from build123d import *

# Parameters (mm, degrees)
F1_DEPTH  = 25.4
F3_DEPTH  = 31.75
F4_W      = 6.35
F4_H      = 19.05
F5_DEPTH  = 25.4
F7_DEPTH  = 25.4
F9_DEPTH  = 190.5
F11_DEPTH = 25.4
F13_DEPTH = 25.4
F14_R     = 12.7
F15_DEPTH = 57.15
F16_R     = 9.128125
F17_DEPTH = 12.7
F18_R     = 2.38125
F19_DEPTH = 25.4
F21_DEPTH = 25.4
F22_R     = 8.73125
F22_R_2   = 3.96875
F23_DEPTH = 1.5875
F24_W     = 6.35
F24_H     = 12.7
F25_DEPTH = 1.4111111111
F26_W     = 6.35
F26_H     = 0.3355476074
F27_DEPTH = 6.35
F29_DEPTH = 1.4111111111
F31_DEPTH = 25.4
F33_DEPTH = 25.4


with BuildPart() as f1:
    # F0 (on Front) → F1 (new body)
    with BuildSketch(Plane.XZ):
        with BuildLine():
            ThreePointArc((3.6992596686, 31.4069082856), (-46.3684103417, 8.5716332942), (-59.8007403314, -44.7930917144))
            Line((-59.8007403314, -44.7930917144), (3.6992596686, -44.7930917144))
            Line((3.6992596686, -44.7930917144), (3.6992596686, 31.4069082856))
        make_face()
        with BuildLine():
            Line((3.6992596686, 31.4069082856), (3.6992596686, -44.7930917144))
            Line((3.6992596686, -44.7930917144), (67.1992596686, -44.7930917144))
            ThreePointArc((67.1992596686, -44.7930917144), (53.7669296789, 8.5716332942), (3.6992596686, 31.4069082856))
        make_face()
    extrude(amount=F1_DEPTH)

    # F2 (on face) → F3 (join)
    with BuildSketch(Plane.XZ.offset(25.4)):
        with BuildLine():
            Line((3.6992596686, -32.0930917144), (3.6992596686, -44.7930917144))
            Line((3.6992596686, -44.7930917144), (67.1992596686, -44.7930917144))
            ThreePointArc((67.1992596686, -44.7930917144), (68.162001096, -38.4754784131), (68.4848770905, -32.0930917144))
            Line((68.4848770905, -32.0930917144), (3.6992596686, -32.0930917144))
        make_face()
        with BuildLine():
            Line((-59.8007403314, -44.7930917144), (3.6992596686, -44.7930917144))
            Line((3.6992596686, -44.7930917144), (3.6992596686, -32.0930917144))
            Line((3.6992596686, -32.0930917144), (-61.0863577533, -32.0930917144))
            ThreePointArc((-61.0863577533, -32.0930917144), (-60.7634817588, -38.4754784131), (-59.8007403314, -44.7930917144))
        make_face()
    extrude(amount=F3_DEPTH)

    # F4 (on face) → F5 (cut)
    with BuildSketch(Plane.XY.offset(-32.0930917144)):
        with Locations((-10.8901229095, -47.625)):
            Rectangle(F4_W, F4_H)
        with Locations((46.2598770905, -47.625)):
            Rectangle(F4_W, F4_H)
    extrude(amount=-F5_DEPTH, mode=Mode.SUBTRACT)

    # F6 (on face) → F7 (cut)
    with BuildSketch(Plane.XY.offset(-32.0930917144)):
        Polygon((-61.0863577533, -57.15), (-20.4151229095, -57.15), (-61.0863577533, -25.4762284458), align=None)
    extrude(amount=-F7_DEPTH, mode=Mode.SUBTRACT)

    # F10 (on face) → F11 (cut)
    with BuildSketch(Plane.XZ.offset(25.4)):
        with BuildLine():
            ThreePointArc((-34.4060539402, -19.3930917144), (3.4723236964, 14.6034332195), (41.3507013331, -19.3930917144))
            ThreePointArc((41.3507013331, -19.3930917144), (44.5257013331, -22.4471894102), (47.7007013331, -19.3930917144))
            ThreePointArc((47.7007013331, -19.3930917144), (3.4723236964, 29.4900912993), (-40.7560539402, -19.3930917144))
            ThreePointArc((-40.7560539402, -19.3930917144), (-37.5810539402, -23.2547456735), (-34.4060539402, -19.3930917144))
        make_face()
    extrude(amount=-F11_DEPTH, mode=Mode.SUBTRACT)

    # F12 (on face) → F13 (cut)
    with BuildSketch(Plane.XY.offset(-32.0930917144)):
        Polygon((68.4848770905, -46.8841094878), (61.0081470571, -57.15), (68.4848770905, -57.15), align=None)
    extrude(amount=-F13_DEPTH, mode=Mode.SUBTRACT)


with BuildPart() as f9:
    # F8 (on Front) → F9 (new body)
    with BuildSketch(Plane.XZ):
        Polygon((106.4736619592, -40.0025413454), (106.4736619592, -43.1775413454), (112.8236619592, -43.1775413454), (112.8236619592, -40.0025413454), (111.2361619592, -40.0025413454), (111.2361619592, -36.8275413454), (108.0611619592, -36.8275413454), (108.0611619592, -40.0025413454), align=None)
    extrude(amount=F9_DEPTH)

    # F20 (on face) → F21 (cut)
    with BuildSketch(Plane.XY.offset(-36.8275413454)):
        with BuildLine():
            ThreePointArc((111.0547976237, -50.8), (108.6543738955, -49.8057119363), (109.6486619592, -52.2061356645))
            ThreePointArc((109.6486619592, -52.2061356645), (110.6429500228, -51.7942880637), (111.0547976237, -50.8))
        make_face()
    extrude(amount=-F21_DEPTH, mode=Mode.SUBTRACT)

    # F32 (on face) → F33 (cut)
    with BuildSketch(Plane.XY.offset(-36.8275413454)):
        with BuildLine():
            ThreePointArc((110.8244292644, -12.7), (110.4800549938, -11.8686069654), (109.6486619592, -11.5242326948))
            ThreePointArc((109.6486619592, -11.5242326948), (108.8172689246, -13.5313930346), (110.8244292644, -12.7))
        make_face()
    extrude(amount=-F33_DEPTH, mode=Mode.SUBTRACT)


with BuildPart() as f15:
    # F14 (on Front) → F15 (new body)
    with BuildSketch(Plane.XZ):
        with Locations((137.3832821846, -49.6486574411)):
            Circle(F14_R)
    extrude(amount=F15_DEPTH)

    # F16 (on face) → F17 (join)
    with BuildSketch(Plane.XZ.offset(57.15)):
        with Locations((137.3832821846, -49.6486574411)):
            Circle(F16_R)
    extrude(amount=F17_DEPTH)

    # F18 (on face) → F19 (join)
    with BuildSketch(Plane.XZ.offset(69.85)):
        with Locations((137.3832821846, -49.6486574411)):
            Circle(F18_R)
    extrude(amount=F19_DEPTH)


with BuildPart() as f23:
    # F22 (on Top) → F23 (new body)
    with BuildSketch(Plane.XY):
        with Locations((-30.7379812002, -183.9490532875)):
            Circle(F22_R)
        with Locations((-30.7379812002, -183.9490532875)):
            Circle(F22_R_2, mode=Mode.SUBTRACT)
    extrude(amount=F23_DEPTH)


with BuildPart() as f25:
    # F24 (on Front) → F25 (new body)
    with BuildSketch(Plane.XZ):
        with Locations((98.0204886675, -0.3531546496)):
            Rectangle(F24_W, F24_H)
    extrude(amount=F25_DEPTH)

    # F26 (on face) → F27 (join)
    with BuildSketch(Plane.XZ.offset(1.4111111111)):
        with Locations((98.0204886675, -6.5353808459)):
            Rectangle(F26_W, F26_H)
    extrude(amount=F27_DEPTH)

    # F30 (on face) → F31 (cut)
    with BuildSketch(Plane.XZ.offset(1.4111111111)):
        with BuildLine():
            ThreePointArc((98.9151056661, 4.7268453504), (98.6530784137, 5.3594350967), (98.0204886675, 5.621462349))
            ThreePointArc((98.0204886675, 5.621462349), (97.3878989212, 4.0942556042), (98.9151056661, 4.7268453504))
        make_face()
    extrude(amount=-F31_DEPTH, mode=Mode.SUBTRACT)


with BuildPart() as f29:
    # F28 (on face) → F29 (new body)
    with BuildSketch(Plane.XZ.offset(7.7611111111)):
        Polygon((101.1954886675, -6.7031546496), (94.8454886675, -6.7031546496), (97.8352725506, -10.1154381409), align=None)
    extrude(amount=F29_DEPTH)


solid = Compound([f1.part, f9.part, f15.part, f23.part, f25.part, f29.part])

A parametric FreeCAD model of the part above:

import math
import FreeCAD as App
import Part
import Sketcher

V = App.Vector
Q = App.Units.Quantity


def add_polygon(sketch, points):
    """Adds a closed chain of lines whose ends are joined by coincident constraints."""
    first, n = sketch.GeometryCount, len(points)
    for a, b in zip(points, points[1:] + points[:1]):
        sketch.addGeometry(Part.LineSegment(App.Vector(*a, 0), App.Vector(*b, 0)), False)
    for i in range(n):
        sketch.addConstraint(Sketcher.Constraint("Coincident", first + i, 2, first + (i + 1) % n, 1))

doc = App.newDocument("Part")
body = doc.addObject("PartDesign::Body", "Body")

sketch1 = body.newObject("Sketcher::SketchObject", "Sketch")
sketch1.AttachmentSupport = (doc.getObject("XZ_Plane"), [""])
sketch1.MapMode = "FlatFace"
sketch1.addGeometry([
    Part.ArcOfCircle(Part.Circle(V(2, -32, 0), V(0, 0, 1), 64), math.radians(89), math.radians(192)),
    Part.LineSegment(V(-60, -45, 0), V(67, -45, 0)),
    Part.ArcOfCircle(Part.Circle(V(5, -32, 0), V(0, 0, 1), 64), math.radians(-12), math.radians(91)),
], False)
sketch1.addConstraint([
    Sketcher.Constraint("Coincident", 0, 2, 1, 1),
    Sketcher.Constraint("Coincident", 1, 2, 2, 1),
    Sketcher.Constraint("Coincident", 2, 2, 0, 1),
    Sketcher.Constraint("Horizontal", 1),
    Sketcher.Constraint("Equal", 0, 2),
    Sketcher.Constraint("Horizontal", 0, 3, 2, 3),
    Sketcher.Constraint("Radius", 0, Q("2.5 in")),
    Sketcher.Constraint("DistanceX", 1, 1, 1, 2, Q("5 in")),
    Sketcher.Constraint("DistanceY", 1, 2, 2, 2, Q("3 in")),
    Sketcher.Constraint("DistanceX", -1, 1, 0, 3, 2.413641),
    Sketcher.Constraint("DistanceY", 0, 2, -1, 1, 44.793092),
])
pad1 = body.newObject("PartDesign::Pad", "Pad")
pad1.Profile = sketch1
pad1.Length = Q("1 in")

sketch2 = body.newObject("Sketcher::SketchObject", "Sketch001")
sketch2.AttachmentSupport = (doc.getObject("XZ_Plane"), [""])
sketch2.MapMode = "FlatFace"
sketch2.AttachmentOffset = App.Placement(V(0, 0, 1 * 25.4), App.Rotation())
sketch2.addGeometry([
    Part.ArcOfCircle(Part.Circle(V(5, -32, 0), V(0, 0, 1), 63), math.radians(-11.55), math.radians(-0.01)),
    Part.LineSegment(V(68, -32, 0), V(-61, -32, 0)),
    Part.ArcOfCircle(Part.Circle(V(2, -32, 0), V(0, 0, 1), 63), math.radians(-179.99), math.radians(-168.45)),
    Part.LineSegment(V(-60, -45, 0), V(67, -45, 0)),
], False)
sketch2.addConstraint([
    Sketcher.Constraint("Coincident", 0, 2, 1, 1),
    Sketcher.Constraint("Coincident", 1, 2, 2, 1),
    Sketcher.Constraint("Coincident", 2, 2, 3, 1),
    Sketcher.Constraint("Coincident", 3, 2, 0, 1),
    Sketcher.Constraint("Horizontal", 1),
    Sketcher.Constraint("Horizontal", 3),
    Sketcher.Constraint("Equal", 0, 2),
    Sketcher.Constraint("Horizontal", 0, 3, 2, 3),
    Sketcher.Constraint("Radius", 0, Q("2.5 in")),
    Sketcher.Constraint("DistanceX", 3, 1, 3, 2, Q("5 in")),
    Sketcher.Constraint("DistanceY", 2, 2, 1, 2, Q("0.5 in")),
    Sketcher.Constraint("DistanceX", 1, 2, 1, 1, 129.571235),
    Sketcher.Constraint("DistanceX", -1, 1, 0, 3, 4.984878),
    Sketcher.Constraint("DistanceY", 0, 2, -1, 1, 32.093092),
])
pad2 = body.newObject("PartDesign::Pad", "Pad001")
pad2.Profile = sketch2
pad2.Length = Q("1.25 in")

sketch3 = body.newObject("Sketcher::SketchObject", "Sketch002")
sketch3.AttachmentSupport = (doc.getObject("XY_Plane"), [""])
sketch3.MapMode = "FlatFace"
sketch3.AttachmentOffset = App.Placement(V(0, 0, -32.093092), App.Rotation())
add_polygon(sketch3, [(-14, -38), (-14, -57), (-8, -57), (-8, -38)])
add_polygon(sketch3, [(43, -38), (43, -57), (49, -57), (49, -38)])
sketch3.addConstraint([
    Sketcher.Constraint("Vertical", 0),
    Sketcher.Constraint("Horizontal", 1),
    Sketcher.Constraint("Vertical", 2),
    Sketcher.Constraint("Horizontal", 3),
    Sketcher.Constraint("Vertical", 4),
    Sketcher.Constraint("Horizontal", 5),
    Sketcher.Constraint("Vertical", 6),
    Sketcher.Constraint("Horizontal", 7),
    Sketcher.Constraint("Horizontal", 1, 2, 4, 2),
    Sketcher.Constraint("Horizontal", 3, 2, 6, 2),
    Sketcher.Constraint("Equal", 3, 5),
    Sketcher.Constraint("DistanceX", 1, 2, 4, 2, Q("2 in")),
    Sketcher.Constraint("DistanceX", 1, 1, 1, 2, Q("0.25 in")),
    Sketcher.Constraint("DistanceY", 0, 2, 0, 1, Q("0.75 in")),
    Sketcher.Constraint("DistanceY", 2, 2, -1, 1, Q("1.5 in")),
    Sketcher.Constraint("DistanceX", 0, 2, -1, 1, 14.065123),
])
pocket1 = body.newObject("PartDesign::Pocket", "Pocket")
pocket1.Profile = sketch3
pocket1.Length = Q("1 in")

sketch4 = body.newObject("Sketcher::SketchObject", "Sketch003")
sketch4.AttachmentSupport = (doc.getObject("XY_Plane"), [""])
sketch4.MapMode = "FlatFace"
sketch4.AttachmentOffset = App.Placement(V(0, 0, -32.093092), App.Rotation())
add_polygon(sketch4, [(-61, -57), (-20, -57), (-61, -25)])
sketch4.addConstraint([
    Sketcher.Constraint("Horizontal", 0),
    Sketcher.Constraint("Vertical", 2),
    Sketcher.Constraint("DistanceY", 0, 2, -1, 1, Q("2.25 in")),
    Sketcher.Constraint("DistanceY", 2, 2, 2, 1, 31.673772),
    Sketcher.Constraint("DistanceX", 0, 1, 0, 2, 40.671235),
    Sketcher.Constraint("DistanceX", 0, 2, -1, 1, 20.415123),
])
pocket2 = body.newObject("PartDesign::Pocket", "Pocket001")
pocket2.Profile = sketch4
pocket2.Length = Q("1 in")

sketch5 = body.newObject("Sketcher::SketchObject", "Sketch004")
sketch5.AttachmentSupport = (doc.getObject("XZ_Plane"), [""])
sketch5.MapMode = "FlatFace"
sketch5.AttachmentOffset = App.Placement(V(0, 0, 1 * 25.4), App.Rotation())
sketch5.addGeometry([
    Part.ArcOfCircle(Part.Circle(V(3.5, -23.5, 0), V(0, 0, 1), 38.1), math.radians(6), math.radians(174)),
    Part.ArcOfCircle(Part.Circle(V(44.5, -19.3, 0), V(0, 0, 1), 3.2), math.radians(-178), math.radians(-2)),
    Part.ArcOfCircle(Part.Circle(V(3.5, -15, 0), V(0, 0, 1), 44.5), math.radians(-6), math.radians(186)),
    Part.ArcOfCircle(Part.Circle(V(-37.6, -20, 0), V(0, 0, 1), 3.2), math.radians(169), math.radians(371)),
], False)
sketch5.addConstraint([
    Sketcher.Constraint("Coincident", 0, 1, 1, 1),
    Sketcher.Constraint("Coincident", 1, 2, 2, 1),
    Sketcher.Constraint("Coincident", 2, 2, 3, 1),
    Sketcher.Constraint("Coincident", 3, 2, 0, 2),
    Sketcher.Constraint("Horizontal", 0, 1, 1, 2),
    Sketcher.Constraint("Horizontal", 1, 2, 2, 2),
    Sketcher.Constraint("Horizontal", 2, 2, 3, 2),
    Sketcher.Constraint("Vertical", 0, 3, 2, 3),
    Sketcher.Constraint("Radius", 0, Q("1.5 in")),
    Sketcher.Constraint("Radius", 2, Q("1.75 in")),
    Sketcher.Constraint("DistanceX", 0, 1, 1, 2, Q("0.25 in")),
    Sketcher.Constraint("Radius", 3, 3.236048),
    Sketcher.Constraint("Radius", 1, 3.177393),
    Sketcher.Constraint("DistanceX", -1, 1, 1, 3, 44.525701),
    Sketcher.Constraint("DistanceY", 2, 3, -1, 1, 14.959909),
    Sketcher.Constraint("DistanceY", 0, 1, -1, 1, 19.393092),
])
pocket3 = body.newObject("PartDesign::Pocket", "Pocket002")
pocket3.Profile = sketch5
pocket3.Length = Q("1 in")

sketch6 = body.newObject("Sketcher::SketchObject", "Sketch005")
sketch6.AttachmentSupport = (doc.getObject("XY_Plane"), [""])
sketch6.MapMode = "FlatFace"
sketch6.AttachmentOffset = App.Placement(V(0, 0, -32.093092), App.Rotation())
add_polygon(sketch6, [(68, -47), (61, -57), (68, -57)])
sketch6.addConstraint([
    Sketcher.Constraint("Horizontal", 1),
    Sketcher.Constraint("Vertical", 2),
    Sketcher.Constraint("Distance", 0, Q("0.5 in")),
    Sketcher.Constraint("DistanceY", 0, 2, -1, 1, Q("2.25 in")),
    Sketcher.Constraint("DistanceX", 1, 1, 1, 2, 7.47673),
    Sketcher.Constraint("DistanceX", -1, 1, 0, 2, 61.008147),
])
pocket4 = body.newObject("PartDesign::Pocket", "Pocket003")
pocket4.Profile = sketch6
pocket4.Length = Q("1 in")
body2 = doc.addObject("PartDesign::Body", "Body001")

sketch7 = body2.newObject("Sketcher::SketchObject", "Sketch006")
sketch7.AttachmentSupport = (doc.getObject("XZ_Plane001"), [""])
sketch7.MapMode = "FlatFace"
add_polygon(sketch7, [(106.5, -40), (106.5, -43.2), (112.8, -43.2), (112.8, -40), (111.2, -40), (111.2, -36.8), (108.1, -36.8), (108.1, -40)])
sketch7.addConstraint([
    Sketcher.Constraint("Vertical", 0),
    Sketcher.Constraint("Horizontal", 1),
    Sketcher.Constraint("Vertical", 2),
    Sketcher.Constraint("Horizontal", 3),
    Sketcher.Constraint("Vertical", 4),
    Sketcher.Constraint("Horizontal", 5),
    Sketcher.Constraint("Vertical", 6),
    Sketcher.Constraint("Horizontal", 7),
    Sketcher.Constraint("Horizontal", 3, 2, 6, 2),
    Sketcher.Constraint("Equal", 3, 7),
    Sketcher.Constraint("Equal", 5, 0),
    Sketcher.Constraint("Equal", 2, 4),
    Sketcher.Constraint("DistanceX", 1, 1, 1, 2, Q("0.25 in")),
    Sketcher.Constraint("DistanceX", 3, 2, 3, 1, Q("0.0625 in")),
    Sketcher.Constraint("DistanceX", -1, 1, 0, 2, 106.473662),
    Sketcher.Constraint("DistanceY", 0, 2, -1, 1, 43.177541),
])
pad3 = body2.newObject("PartDesign::Pad", "Pad002")
pad3.Profile = sketch7
pad3.Length = Q("7.5 in")

sketch8 = body2.newObject("Sketcher::SketchObject", "Sketch007")
sketch8.AttachmentSupport = (doc.getObject("XY_Plane001"), [""])
sketch8.MapMode = "FlatFace"
sketch8.AttachmentOffset = App.Placement(V(0, 0, -36.827541), App.Rotation())
sketch8.addGeometry([
    Part.ArcOfCircle(Part.Circle(V(109.6, -50.8, 0), V(0, 0, 1), 1.4), math.radians(0), math.radians(270)),
    Part.ArcOfCircle(Part.Circle(V(109.6, -50.8, 0), V(0, 0, 1), 1.4), math.radians(-90), math.radians(0)),
], False)
sketch8.addConstraint([
    Sketcher.Constraint("Tangent", 0, 1, 1, 2),
    Sketcher.Constraint("Coincident", 1, 1, 0, 2),
    Sketcher.Constraint("Horizontal", 1, 3, 0, 1),
    Sketcher.Constraint("Vertical", 0, 3, 1, 1),
    Sketcher.Constraint("DistanceY", 0, 3, -1, 1, Q("2 in")),
    Sketcher.Constraint("Radius", 0, 1.406136),
    Sketcher.Constraint("DistanceX", -1, 1, 0, 3, 109.648662),
])
pocket5 = body2.newObject("PartDesign::Pocket", "Pocket004")
pocket5.Profile = sketch8
pocket5.Length = Q("1 in")

sketch9 = body2.newObject("Sketcher::SketchObject", "Sketch008")
sketch9.AttachmentSupport = (doc.getObject("XY_Plane001"), [""])
sketch9.MapMode = "FlatFace"
sketch9.AttachmentOffset = App.Placement(V(0, 0, -36.827541), App.Rotation())
sketch9.addGeometry([
    Part.ArcOfCircle(Part.Circle(V(109.6, -12.7, 0), V(0, 0, 1), 1.2), math.radians(0), math.radians(90)),
    Part.ArcOfCircle(Part.Circle(V(109.6, -12.7, 0), V(0, 0, 1), 1.2), math.radians(90), math.radians(360)),
], False)
sketch9.addConstraint([
    Sketcher.Constraint("Tangent", 0, 1, 1, 2),
    Sketcher.Constraint("Coincident", 1, 1, 0, 2),
    Sketcher.Constraint("Horizontal", 1, 3, 0, 1),
    Sketcher.Constraint("Vertical", 0, 3, 1, 1),
    Sketcher.Constraint("DistanceY", 0, 3, -1, 1, Q("0.5 in")),
    Sketcher.Constraint("Radius", 0, 1.175767),
    Sketcher.Constraint("DistanceX", -1, 1, 0, 3, 109.648662),
])
pocket6 = body2.newObject("PartDesign::Pocket", "Pocket005")
pocket6.Profile = sketch9
pocket6.Length = Q("1 in")
body3 = doc.addObject("PartDesign::Body", "Body002")

sketch10 = body3.newObject("Sketcher::SketchObject", "Sketch009")
sketch10.AttachmentSupport = (doc.getObject("XZ_Plane002"), [""])
sketch10.MapMode = "FlatFace"
sketch10.addGeometry(Part.Circle(V(137, -50, 0), V(0, 0, 1), 13), False)
sketch10.addConstraint([
    Sketcher.Constraint("Diameter", 0, Q("1 in")),
    Sketcher.Constraint("DistanceX", -1, 1, 0, 3, 137.383282),
    Sketcher.Constraint("DistanceY", 0, 3, -1, 1, 49.648657),
])
pad4 = body3.newObject("PartDesign::Pad", "Pad003")
pad4.Profile = sketch10
pad4.Length = Q("2.25 in")

sketch11 = body3.newObject("Sketcher::SketchObject", "Sketch010")
sketch11.AttachmentSupport = (doc.getObject("XZ_Plane002"), [""])
sketch11.MapMode = "FlatFace"
sketch11.AttachmentOffset = App.Placement(V(0, 0, 2.25 * 25.4), App.Rotation())
sketch11.addGeometry(Part.Circle(V(137, -50, 0), V(0, 0, 1), 9), False)
sketch11.addConstraint([
    Sketcher.Constraint("Diameter", 0, Q("0.71875 in")),
    Sketcher.Constraint("DistanceX", -1, 1, 0, 3, 137.383282),
    Sketcher.Constraint("DistanceY", 0, 3, -1, 1, 49.648657),
])
pad5 = body3.newObject("PartDesign::Pad", "Pad004")
pad5.Profile = sketch11
pad5.Length = Q("0.5 in")

sketch12 = body3.newObject("Sketcher::SketchObject", "Sketch011")
sketch12.AttachmentSupport = (doc.getObject("XZ_Plane002"), [""])
sketch12.MapMode = "FlatFace"
sketch12.AttachmentOffset = App.Placement(V(0, 0, 2.75 * 25.4), App.Rotation())
sketch12.addGeometry(Part.Circle(V(137.4, -49.6, 0), V(0, 0, 1), 2.4), False)
sketch12.addConstraint([
    Sketcher.Constraint("Diameter", 0, Q("0.1875 in")),
    Sketcher.Constraint("DistanceX", -1, 1, 0, 3, 137.383282),
    Sketcher.Constraint("DistanceY", 0, 3, -1, 1, 49.648657),
])
pad6 = body3.newObject("PartDesign::Pad", "Pad005")
pad6.Profile = sketch12
pad6.Length = Q("1 in")
body4 = doc.addObject("PartDesign::Body", "Body003")

sketch13 = body4.newObject("Sketcher::SketchObject", "Sketch012")
sketch13.AttachmentSupport = (doc.getObject("XY_Plane003"), [""])
sketch13.MapMode = "FlatFace"
sketch13.addGeometry([
    Part.Circle(V(-30.7, -183.9, 0), V(0, 0, 1), 8.7),
    Part.Circle(V(-30.7, -183.9, 0), V(0, 0, 1), 4),
], False)
sketch13.addConstraint([
    Sketcher.Constraint("Coincident", 1, 3, 0, 3),
    Sketcher.Constraint("Diameter", 0, Q("0.6875 in")),
    Sketcher.Constraint("Diameter", 1, Q("0.3125 in")),
    Sketcher.Constraint("DistanceX", 0, 3, -1, 1, 30.737981),
    Sketcher.Constraint("DistanceY", 0, 3, -1, 1, 183.949053),
])
pad7 = body4.newObject("PartDesign::Pad", "Pad006")
pad7.Profile = sketch13
pad7.Length = Q("0.0625 in")
body5 = doc.addObject("PartDesign::Body", "Body004")

sketch14 = body5.newObject("Sketcher::SketchObject", "Sketch013")
sketch14.AttachmentSupport = (doc.getObject("XZ_Plane004"), [""])
sketch14.MapMode = "FlatFace"
add_polygon(sketch14, [(95, 6), (95, -7), (101, -7), (101, 6)])
sketch14.addConstraint([
    Sketcher.Constraint("Vertical", 0),
    Sketcher.Constraint("Horizontal", 1),
    Sketcher.Constraint("Vertical", 2),
    Sketcher.Constraint("Horizontal", 3),
    Sketcher.Constraint("DistanceY", 0, 2, 0, 1, Q("0.5 in")),
    Sketcher.Constraint("DistanceX", 1, 1, 1, 2, Q("0.25 in")),
    Sketcher.Constraint("DistanceX", -1, 1, 0, 2, 94.845489),
    Sketcher.Constraint("DistanceY", 0, 2, -1, 1, 6.703155),
])
pad8 = body5.newObject("PartDesign::Pad", "Pad007")
pad8.Profile = sketch14
pad8.Length = 1.411111

sketch15 = body5.newObject("Sketcher::SketchObject", "Sketch014")
sketch15.AttachmentSupport = (doc.getObject("XZ_Plane004"), [""])
sketch15.MapMode = "FlatFace"
sketch15.AttachmentOffset = App.Placement(V(0, 0, 1.411111), App.Rotation())
add_polygon(sketch15, [(94.85, -6.37), (94.85, -6.7), (101.2, -6.7), (101.2, -6.37)])
sketch15.addConstraint([
    Sketcher.Constraint("Vertical", 0),
    Sketcher.Constraint("Horizontal", 1),
    Sketcher.Constraint("Vertical", 2),
    Sketcher.Constraint("Horizontal", 3),
    Sketcher.Constraint("DistanceX", 1, 1, 1, 2, Q("0.25 in")),
    Sketcher.Constraint("DistanceY", 0, 2, 0, 1, 0.335548),
    Sketcher.Constraint("DistanceX", -1, 1, 0, 2, 94.845489),
    Sketcher.Constraint("DistanceY", 0, 2, -1, 1, 6.703155),
])
pad9 = body5.newObject("PartDesign::Pad", "Pad008")
pad9.Profile = sketch15
pad9.Length = Q("0.25 in")

sketch16 = body5.newObject("Sketcher::SketchObject", "Sketch015")
sketch16.AttachmentSupport = (doc.getObject("XZ_Plane004"), [""])
sketch16.MapMode = "FlatFace"
sketch16.AttachmentOffset = App.Placement(V(0, 0, 1.411111), App.Rotation())
sketch16.addGeometry([
    Part.ArcOfCircle(Part.Circle(V(98, 4.7, 0), V(0, 0, 1), 0.9), math.radians(0), math.radians(90)),
    Part.ArcOfCircle(Part.Circle(V(98, 4.7, 0), V(0, 0, 1), 0.9), math.radians(90), math.radians(360)),
], False)
sketch16.addConstraint([
    Sketcher.Constraint("Tangent", 0, 1, 1, 2),
    Sketcher.Constraint("Coincident", 1, 1, 0, 2),
    Sketcher.Constraint("Horizontal", 1, 3, 0, 1),
    Sketcher.Constraint("Vertical", 0, 3, 1, 1),
    Sketcher.Constraint("Radius", 0, 0.894617),
    Sketcher.Constraint("DistanceX", -1, 1, 0, 3, 98.020489),
    Sketcher.Constraint("DistanceY", -1, 1, 0, 3, 4.726845),
])
pocket7 = body5.newObject("PartDesign::Pocket", "Pocket006")
pocket7.Profile = sketch16
pocket7.Length = Q("1 in")
body6 = doc.addObject("PartDesign::Body", "Body005")

sketch17 = body6.newObject("Sketcher::SketchObject", "Sketch016")
sketch17.AttachmentSupport = (doc.getObject("XZ_Plane005"), [""])
sketch17.MapMode = "FlatFace"
sketch17.AttachmentOffset = App.Placement(V(0, 0, 7.761111), App.Rotation())
add_polygon(sketch17, [(101.2, -6.7), (94.8, -6.7), (97.8, -10.1)])
sketch17.addConstraint([
    Sketcher.Constraint("Horizontal", 0),
    Sketcher.Constraint("DistanceX", 0, 2, 0, 1, Q("0.25 in")),
    Sketcher.Constraint("Distance", 2, 4.789022),
    Sketcher.Constraint("DistanceX", -1, 1, 0, 2, 94.845489),
    Sketcher.Constraint("DistanceY", 1, 2, -1, 1, 10.115438),
    Sketcher.Constraint("Distance", 1, 4.536793),
])
pad10 = body6.newObject("PartDesign::Pad", "Pad009")
pad10.Profile = sketch17
pad10.Length = 1.411111

doc.recompute()
